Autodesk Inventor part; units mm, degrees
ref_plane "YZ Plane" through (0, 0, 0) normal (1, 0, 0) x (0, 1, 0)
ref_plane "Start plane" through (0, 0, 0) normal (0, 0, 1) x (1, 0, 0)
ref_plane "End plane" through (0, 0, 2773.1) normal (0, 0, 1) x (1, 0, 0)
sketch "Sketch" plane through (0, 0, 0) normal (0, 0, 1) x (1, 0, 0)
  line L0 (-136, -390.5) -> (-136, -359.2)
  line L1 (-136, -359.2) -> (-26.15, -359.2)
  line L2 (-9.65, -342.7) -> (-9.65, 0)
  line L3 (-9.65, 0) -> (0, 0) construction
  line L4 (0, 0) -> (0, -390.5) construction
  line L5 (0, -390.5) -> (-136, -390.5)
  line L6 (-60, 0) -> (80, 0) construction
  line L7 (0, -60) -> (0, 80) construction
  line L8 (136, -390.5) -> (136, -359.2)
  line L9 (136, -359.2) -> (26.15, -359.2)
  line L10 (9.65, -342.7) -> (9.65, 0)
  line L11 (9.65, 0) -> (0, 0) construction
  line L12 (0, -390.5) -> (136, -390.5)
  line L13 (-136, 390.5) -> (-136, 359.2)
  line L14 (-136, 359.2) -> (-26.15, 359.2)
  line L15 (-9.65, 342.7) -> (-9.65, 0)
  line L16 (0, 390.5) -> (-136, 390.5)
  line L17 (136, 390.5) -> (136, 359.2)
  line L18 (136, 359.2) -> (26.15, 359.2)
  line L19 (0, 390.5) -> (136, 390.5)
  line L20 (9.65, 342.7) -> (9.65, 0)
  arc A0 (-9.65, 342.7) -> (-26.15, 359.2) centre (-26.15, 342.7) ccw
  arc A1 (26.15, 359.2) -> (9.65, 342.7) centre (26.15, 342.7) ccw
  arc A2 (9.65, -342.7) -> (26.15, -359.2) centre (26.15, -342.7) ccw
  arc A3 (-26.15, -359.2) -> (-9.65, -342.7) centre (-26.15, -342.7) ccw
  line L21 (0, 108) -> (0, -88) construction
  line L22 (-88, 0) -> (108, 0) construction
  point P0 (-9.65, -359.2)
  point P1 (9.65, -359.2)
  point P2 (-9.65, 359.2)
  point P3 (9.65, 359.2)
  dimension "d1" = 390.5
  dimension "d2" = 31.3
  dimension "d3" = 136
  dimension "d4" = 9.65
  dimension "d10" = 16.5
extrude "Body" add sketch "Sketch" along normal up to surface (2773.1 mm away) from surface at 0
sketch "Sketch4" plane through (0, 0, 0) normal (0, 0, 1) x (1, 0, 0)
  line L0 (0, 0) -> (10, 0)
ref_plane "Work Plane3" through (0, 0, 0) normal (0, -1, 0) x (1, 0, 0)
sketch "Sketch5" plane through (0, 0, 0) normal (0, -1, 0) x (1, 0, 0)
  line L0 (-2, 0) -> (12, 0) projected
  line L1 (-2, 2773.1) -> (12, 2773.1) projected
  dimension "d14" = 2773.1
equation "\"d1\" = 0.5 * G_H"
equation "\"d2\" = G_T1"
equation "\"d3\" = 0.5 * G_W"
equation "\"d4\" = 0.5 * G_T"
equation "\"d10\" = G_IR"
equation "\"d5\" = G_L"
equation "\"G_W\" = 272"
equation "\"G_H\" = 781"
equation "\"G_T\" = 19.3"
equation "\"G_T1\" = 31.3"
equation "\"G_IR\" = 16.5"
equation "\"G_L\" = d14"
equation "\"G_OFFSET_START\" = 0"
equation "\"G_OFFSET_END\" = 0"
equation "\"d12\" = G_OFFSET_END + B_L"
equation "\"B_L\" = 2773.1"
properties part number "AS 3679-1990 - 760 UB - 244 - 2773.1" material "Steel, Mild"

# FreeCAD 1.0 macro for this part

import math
import FreeCAD as App
import Part
import Sketcher

doc = App.newDocument("Part")
body = doc.addObject("PartDesign::Body", "Body")

# Sketch on XY plane
sketch1 = doc.addObject("Sketcher::SketchObject", "Sketch")
body.addObject(sketch1)
sketch1.AttachmentSupport = (doc.XY_Plane, [""])
sketch1.MapMode = "FlatFace"
sketch1.addGeometry(Part.LineSegment(App.Vector(-136, -359.2, 0), App.Vector(-136, -390.5, 0)), False)
sketch1.addGeometry(Part.LineSegment(App.Vector(-136, -390.5, 0), App.Vector(136, -390.5, 0)), False)
sketch1.addGeometry(Part.LineSegment(App.Vector(136, -390.5, 0), App.Vector(136, -359.2, 0)), False)
sketch1.addGeometry(Part.LineSegment(App.Vector(136, -359.2, 0), App.Vector(26.15, -359.2, 0)), False)
sketch1.addGeometry(Part.ArcOfCircle(Part.Circle(App.Vector(26.15, -342.7, 0), App.Vector(0, 0, 1), 16.5), math.radians(180), math.radians(270)), False)
sketch1.addGeometry(Part.LineSegment(App.Vector(9.65, -342.7, 0), App.Vector(9.65, 342.7, 0)), False)
sketch1.addGeometry(Part.ArcOfCircle(Part.Circle(App.Vector(26.15, 342.7, 0), App.Vector(0, 0, 1), 16.5), math.radians(90), math.radians(180)), False)
sketch1.addGeometry(Part.LineSegment(App.Vector(26.15, 359.2, 0), App.Vector(136, 359.2, 0)), False)
sketch1.addGeometry(Part.LineSegment(App.Vector(136, 359.2, 0), App.Vector(136, 390.5, 0)), False)
sketch1.addGeometry(Part.LineSegment(App.Vector(136, 390.5, 0), App.Vector(-136, 390.5, 0)), False)
sketch1.addGeometry(Part.LineSegment(App.Vector(-136, 390.5, 0), App.Vector(-136, 359.2, 0)), False)
sketch1.addGeometry(Part.LineSegment(App.Vector(-136, 359.2, 0), App.Vector(-26.15, 359.2, 0)), False)
sketch1.addGeometry(Part.ArcOfCircle(Part.Circle(App.Vector(-26.15, 342.7, 0), App.Vector(0, 0, 1), 16.5), math.radians(0), math.radians(90)), False)
sketch1.addGeometry(Part.LineSegment(App.Vector(-9.65, 342.7, 0), App.Vector(-9.65, -342.7, 0)), False)
sketch1.addGeometry(Part.ArcOfCircle(Part.Circle(App.Vector(-26.15, -342.7, 0), App.Vector(0, 0, 1), 16.5), math.radians(-90), math.radians(0)), False)
sketch1.addGeometry(Part.LineSegment(App.Vector(-26.15, -359.2, 0), App.Vector(-136, -359.2, 0)), False)
sketch1.addConstraint(Sketcher.Constraint("Coincident", 0, 2, 1, 1))
sketch1.addConstraint(Sketcher.Constraint("Coincident", 1, 2, 2, 1))
sketch1.addConstraint(Sketcher.Constraint("Coincident", 2, 2, 3, 1))
sketch1.addConstraint(Sketcher.Constraint("Tangent", 3, 2, 4, 2))
sketch1.addConstraint(Sketcher.Constraint("Tangent", 4, 1, 5, 1))
sketch1.addConstraint(Sketcher.Constraint("Tangent", 5, 2, 6, 2))
sketch1.addConstraint(Sketcher.Constraint("Tangent", 6, 1, 7, 1))
sketch1.addConstraint(Sketcher.Constraint("Coincident", 7, 2, 8, 1))
sketch1.addConstraint(Sketcher.Constraint("Coincident", 8, 2, 9, 1))
sketch1.addConstraint(Sketcher.Constraint("Coincident", 9, 2, 10, 1))
sketch1.addConstraint(Sketcher.Constraint("Coincident", 10, 2, 11, 1))
sketch1.addConstraint(Sketcher.Constraint("Tangent", 11, 2, 12, 2))
sketch1.addConstraint(Sketcher.Constraint("Tangent", 12, 1, 13, 1))
sketch1.addConstraint(Sketcher.Constraint("Tangent", 13, 2, 14, 2))
sketch1.addConstraint(Sketcher.Constraint("Tangent", 14, 1, 15, 1))
sketch1.addConstraint(Sketcher.Constraint("Coincident", 15, 2, 0, 1))
sketch1.addConstraint(Sketcher.Constraint("Vertical", 0))
sketch1.addConstraint(Sketcher.Constraint("Horizontal", 1))
sketch1.addConstraint(Sketcher.Constraint("Vertical", 2))
sketch1.addConstraint(Sketcher.Constraint("Horizontal", 3))
sketch1.addConstraint(Sketcher.Constraint("Vertical", 5))
sketch1.addConstraint(Sketcher.Constraint("Horizontal", 7))
sketch1.addConstraint(Sketcher.Constraint("Vertical", 8))
sketch1.addConstraint(Sketcher.Constraint("Horizontal", 9))
sketch1.addConstraint(Sketcher.Constraint("Vertical", 10))
sketch1.addConstraint(Sketcher.Constraint("Horizontal", 11))
sketch1.addConstraint(Sketcher.Constraint("Vertical", 13))
sketch1.addConstraint(Sketcher.Constraint("Horizontal", 15))
sketch1.addConstraint(Sketcher.Constraint("Equal", 4, 6))
sketch1.addConstraint(Sketcher.Constraint("Equal", 6, 12))
sketch1.addConstraint(Sketcher.Constraint("Equal", 12, 14))
sketch1.addConstraint(Sketcher.Constraint("Symmetric", 4, 3, 12, 3, -1, 1))
sketch1.addConstraint(Sketcher.Constraint("Symmetric", 0, 2, 8, 2, -1, 1))
sketch1.addConstraint(Sketcher.Constraint("Symmetric", 7, 2, 10, 2, -2))
sketch1.addConstraint(Sketcher.Constraint("Symmetric", 2, 2, 15, 2, -2))
sketch1.addConstraint(Sketcher.Constraint("Radius", 4, 16.5))
sketch1.addConstraint(Sketcher.Constraint("DistanceY", 0, 2, 0, 1, 31.3))
sketch1.addConstraint(Sketcher.Constraint("DistanceX", 0, 2, -1, 1, 136.0))
sketch1.addConstraint(Sketcher.Constraint("DistanceY", 0, 2, -1, 1, 390.5))
sketch1.addConstraint(Sketcher.Constraint("DistanceX", -1, 1, 4, 1, 9.65))
pad1 = doc.addObject("PartDesign::Pad", "Pad")
body.addObject(pad1)
pad1.Profile = sketch1
pad1.Length = 2773.1

doc.recompute()
